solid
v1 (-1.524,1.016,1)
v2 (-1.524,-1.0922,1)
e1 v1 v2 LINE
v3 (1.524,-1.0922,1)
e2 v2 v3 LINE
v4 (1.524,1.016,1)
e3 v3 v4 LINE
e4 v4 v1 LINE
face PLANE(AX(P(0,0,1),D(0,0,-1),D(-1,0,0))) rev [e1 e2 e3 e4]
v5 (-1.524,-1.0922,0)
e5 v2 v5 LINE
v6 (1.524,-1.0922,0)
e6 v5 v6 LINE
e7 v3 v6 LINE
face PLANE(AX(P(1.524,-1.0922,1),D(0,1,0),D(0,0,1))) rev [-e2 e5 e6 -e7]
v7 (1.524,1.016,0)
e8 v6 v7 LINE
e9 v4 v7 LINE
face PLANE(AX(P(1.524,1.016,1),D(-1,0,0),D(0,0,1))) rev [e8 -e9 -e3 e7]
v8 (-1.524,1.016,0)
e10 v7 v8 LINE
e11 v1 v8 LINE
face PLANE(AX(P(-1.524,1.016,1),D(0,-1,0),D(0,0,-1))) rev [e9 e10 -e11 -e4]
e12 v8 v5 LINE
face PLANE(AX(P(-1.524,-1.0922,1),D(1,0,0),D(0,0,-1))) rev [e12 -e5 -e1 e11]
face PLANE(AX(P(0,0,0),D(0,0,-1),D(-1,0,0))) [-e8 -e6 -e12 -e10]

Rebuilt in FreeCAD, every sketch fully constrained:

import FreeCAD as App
import Part
import Sketcher
from FreeCAD import Vector
Q = App.Units.Quantity


def add_polygon(sketch, points):
    """Adds a closed chain of lines whose ends are joined by coincident constraints."""
    first, n = sketch.GeometryCount, len(points)
    for a, b in zip(points, points[1:] + points[:1]):
        sketch.addGeometry(Part.LineSegment(App.Vector(*a, 0), App.Vector(*b, 0)), False)
    for i in range(n):
        sketch.addConstraint(Sketcher.Constraint("Coincident", first + i, 2, first + (i + 1) % n, 1))

doc = App.newDocument("Part")
body = doc.addObject("PartDesign::Body", "Body")

# Sketch on XY plane
sketch1 = doc.addObject("Sketcher::SketchObject", "Sketch")
body.addObject(sketch1)
sketch1.AttachmentSupport = (doc.XY_Plane, [""])
sketch1.MapMode = "FlatFace"
add_polygon(sketch1, [(-1.5, 1), (-1.5, -1.1), (1.5, -1.1), (1.5, 1)])  # lines 0-3
sketch1.addConstraint([
    Sketcher.Constraint("Vertical", 0),
    Sketcher.Constraint("Horizontal", 1),
    Sketcher.Constraint("Vertical", 2),
    Sketcher.Constraint("Horizontal", 3),
    Sketcher.Constraint("DistanceX", 1, 1, 1, 2, Q("0.12 in")),
    Sketcher.Constraint("DistanceY", 0, 2, 0, 1, Q("0.083 in")),
    Sketcher.Constraint("DistanceX", 0, 2, -1, 1, Q("0.06 in")),
    Sketcher.Constraint("DistanceY", -1, 1, 2, 2, Q("0.04 in")),
])
pad1 = doc.addObject("PartDesign::Pad", "Pad")
body.addObject(pad1)
pad1.Profile = sketch1
pad1.Length = 1

doc.recompute()
